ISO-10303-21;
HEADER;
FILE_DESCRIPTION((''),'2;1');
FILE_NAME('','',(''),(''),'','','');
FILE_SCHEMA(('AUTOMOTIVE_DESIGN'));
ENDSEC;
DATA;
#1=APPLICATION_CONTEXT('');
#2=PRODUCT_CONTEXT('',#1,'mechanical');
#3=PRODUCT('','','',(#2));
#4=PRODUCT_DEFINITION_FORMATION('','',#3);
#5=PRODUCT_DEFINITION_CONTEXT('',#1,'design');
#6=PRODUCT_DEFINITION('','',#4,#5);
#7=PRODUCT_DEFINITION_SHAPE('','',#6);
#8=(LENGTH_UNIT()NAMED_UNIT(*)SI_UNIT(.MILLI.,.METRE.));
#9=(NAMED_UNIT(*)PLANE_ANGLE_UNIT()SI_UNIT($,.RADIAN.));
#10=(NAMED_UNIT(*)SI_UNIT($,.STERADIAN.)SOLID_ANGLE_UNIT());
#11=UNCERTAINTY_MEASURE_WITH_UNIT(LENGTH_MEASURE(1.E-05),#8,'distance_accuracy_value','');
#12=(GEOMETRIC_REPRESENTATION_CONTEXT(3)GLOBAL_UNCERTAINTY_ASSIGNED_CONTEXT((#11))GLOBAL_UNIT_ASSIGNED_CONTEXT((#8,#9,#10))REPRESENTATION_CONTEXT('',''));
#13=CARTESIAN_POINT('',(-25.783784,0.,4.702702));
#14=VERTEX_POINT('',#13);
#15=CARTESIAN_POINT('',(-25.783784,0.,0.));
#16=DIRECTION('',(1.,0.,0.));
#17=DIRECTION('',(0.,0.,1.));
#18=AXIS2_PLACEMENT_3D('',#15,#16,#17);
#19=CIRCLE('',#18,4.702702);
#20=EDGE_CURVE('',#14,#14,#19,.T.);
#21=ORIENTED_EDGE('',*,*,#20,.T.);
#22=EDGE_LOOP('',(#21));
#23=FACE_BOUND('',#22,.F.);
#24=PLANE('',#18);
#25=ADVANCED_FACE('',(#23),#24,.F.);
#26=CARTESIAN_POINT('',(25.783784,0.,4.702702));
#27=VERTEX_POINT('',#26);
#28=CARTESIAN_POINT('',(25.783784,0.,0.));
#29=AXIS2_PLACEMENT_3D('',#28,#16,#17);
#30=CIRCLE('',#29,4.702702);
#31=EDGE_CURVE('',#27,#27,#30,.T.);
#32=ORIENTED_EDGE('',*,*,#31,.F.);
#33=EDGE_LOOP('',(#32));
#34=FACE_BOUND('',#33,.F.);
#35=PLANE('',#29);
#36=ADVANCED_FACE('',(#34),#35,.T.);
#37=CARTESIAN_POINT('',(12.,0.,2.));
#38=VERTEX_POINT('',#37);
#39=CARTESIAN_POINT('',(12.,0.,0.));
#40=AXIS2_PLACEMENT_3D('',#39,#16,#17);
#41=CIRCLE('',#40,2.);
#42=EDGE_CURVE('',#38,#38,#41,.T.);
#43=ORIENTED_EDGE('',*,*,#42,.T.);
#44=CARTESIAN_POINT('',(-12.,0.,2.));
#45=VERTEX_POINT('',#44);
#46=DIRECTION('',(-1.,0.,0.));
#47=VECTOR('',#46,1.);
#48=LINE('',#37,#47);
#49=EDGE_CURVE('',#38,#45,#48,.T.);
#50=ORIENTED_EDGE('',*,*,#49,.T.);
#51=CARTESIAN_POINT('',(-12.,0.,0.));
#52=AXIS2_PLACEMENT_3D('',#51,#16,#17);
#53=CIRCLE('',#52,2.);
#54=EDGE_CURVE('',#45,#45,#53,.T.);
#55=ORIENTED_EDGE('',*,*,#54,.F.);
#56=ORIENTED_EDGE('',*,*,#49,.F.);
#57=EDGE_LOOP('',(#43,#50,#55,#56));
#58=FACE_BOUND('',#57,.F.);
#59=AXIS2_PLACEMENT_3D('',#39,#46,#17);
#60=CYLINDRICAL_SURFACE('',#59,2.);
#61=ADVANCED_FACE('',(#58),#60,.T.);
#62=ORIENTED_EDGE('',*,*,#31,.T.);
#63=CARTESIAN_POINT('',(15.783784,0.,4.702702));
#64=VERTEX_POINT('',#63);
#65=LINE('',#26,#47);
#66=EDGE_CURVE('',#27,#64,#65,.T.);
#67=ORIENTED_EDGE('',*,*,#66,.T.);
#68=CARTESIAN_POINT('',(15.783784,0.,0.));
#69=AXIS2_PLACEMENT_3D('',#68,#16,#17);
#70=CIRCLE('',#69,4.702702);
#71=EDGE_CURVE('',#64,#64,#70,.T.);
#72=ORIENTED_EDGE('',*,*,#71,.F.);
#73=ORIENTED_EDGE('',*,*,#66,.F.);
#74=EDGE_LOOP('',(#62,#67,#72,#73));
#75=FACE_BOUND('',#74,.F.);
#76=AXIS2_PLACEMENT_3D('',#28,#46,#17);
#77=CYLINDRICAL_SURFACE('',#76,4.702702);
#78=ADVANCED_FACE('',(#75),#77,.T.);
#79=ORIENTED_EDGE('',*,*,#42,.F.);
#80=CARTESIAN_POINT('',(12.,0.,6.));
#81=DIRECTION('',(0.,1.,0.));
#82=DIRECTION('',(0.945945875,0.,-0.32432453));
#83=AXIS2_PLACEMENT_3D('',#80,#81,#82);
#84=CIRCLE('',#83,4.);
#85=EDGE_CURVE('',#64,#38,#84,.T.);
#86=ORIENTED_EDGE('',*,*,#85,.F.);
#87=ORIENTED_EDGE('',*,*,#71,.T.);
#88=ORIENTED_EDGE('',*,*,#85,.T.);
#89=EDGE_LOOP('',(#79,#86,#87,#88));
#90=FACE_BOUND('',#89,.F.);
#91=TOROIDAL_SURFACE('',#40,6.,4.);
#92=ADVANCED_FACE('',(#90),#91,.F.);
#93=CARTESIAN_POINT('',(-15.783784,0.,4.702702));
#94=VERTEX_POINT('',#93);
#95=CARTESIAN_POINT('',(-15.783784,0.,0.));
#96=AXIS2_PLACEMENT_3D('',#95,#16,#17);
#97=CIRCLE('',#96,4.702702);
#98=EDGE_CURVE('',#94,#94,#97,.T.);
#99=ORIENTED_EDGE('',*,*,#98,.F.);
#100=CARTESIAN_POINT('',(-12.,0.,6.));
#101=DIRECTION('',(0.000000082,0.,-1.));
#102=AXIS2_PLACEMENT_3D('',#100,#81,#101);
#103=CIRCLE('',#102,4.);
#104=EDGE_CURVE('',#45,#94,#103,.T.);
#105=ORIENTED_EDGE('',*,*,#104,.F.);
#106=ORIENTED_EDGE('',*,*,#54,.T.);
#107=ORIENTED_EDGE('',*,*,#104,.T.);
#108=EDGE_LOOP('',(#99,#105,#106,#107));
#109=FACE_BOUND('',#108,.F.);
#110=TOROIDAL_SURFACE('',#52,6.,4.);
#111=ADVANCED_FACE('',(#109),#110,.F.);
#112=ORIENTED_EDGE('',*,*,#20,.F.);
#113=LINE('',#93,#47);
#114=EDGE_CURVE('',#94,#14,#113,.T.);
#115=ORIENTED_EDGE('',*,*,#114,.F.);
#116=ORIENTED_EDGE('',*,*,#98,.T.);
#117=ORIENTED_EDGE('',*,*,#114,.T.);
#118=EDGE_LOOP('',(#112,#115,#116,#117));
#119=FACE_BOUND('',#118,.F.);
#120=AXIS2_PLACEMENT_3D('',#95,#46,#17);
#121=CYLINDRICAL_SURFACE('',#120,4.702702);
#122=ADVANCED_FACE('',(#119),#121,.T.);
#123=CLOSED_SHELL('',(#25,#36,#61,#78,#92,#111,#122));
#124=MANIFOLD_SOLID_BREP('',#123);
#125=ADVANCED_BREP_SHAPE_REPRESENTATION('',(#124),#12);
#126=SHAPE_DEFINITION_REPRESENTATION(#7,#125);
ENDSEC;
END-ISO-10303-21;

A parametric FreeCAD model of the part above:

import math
import FreeCAD as App
import Part
import Sketcher

doc = App.newDocument("Part")
body = doc.addObject("PartDesign::Body", "Body")

sketch1 = body.newObject("Sketcher::SketchObject", "Sketch")
sketch1.AttachmentSupport = (doc.getObject("XZ_Plane"), [""])
sketch1.MapMode = "FlatFace"
sketch1.addGeometry(Part.LineSegment(App.Vector(-25.8, 0, 0), App.Vector(25.8, 0, 0)), False)
sketch1.addGeometry(Part.LineSegment(App.Vector(25.8, 0, 0), App.Vector(25.8, 4.7, 0)), False)
sketch1.addGeometry(Part.LineSegment(App.Vector(25.8, 4.7, 0), App.Vector(15.8, 4.7, 0)), False)
sketch1.addGeometry(Part.ArcOfCircle(Part.Circle(App.Vector(12, 6, 0), App.Vector(0, 0, 1), 4), math.radians(-90), math.radians(-19)), False)
sketch1.addGeometry(Part.LineSegment(App.Vector(12, 2, 0), App.Vector(-12, 2, 0)), False)
sketch1.addGeometry(Part.ArcOfCircle(Part.Circle(App.Vector(-12, 6, 0), App.Vector(0, 0, 1), 4), math.radians(-161), math.radians(-90)), False)
sketch1.addGeometry(Part.LineSegment(App.Vector(-15.8, 4.7, 0), App.Vector(-25.8, 4.7, 0)), False)
sketch1.addGeometry(Part.LineSegment(App.Vector(-25.8, 4.7, 0), App.Vector(-25.8, 0, 0)), False)
sketch1.addConstraint(Sketcher.Constraint("Coincident", 0, 2, 1, 1))
sketch1.addConstraint(Sketcher.Constraint("Coincident", 1, 2, 2, 1))
sketch1.addConstraint(Sketcher.Constraint("Coincident", 2, 2, 3, 2))
sketch1.addConstraint(Sketcher.Constraint("Tangent", 3, 1, 4, 1))
sketch1.addConstraint(Sketcher.Constraint("Tangent", 4, 2, 5, 2))
sketch1.addConstraint(Sketcher.Constraint("Coincident", 5, 1, 6, 1))
sketch1.addConstraint(Sketcher.Constraint("Coincident", 6, 2, 7, 1))
sketch1.addConstraint(Sketcher.Constraint("Coincident", 7, 2, 0, 1))
sketch1.addConstraint(Sketcher.Constraint("Horizontal", 0))
sketch1.addConstraint(Sketcher.Constraint("Vertical", 1))
sketch1.addConstraint(Sketcher.Constraint("Horizontal", 2))
sketch1.addConstraint(Sketcher.Constraint("Horizontal", 4))
sketch1.addConstraint(Sketcher.Constraint("Horizontal", 6))
sketch1.addConstraint(Sketcher.Constraint("Vertical", 7))
sketch1.addConstraint(Sketcher.Constraint("Equal", 3, 5))
sketch1.addConstraint(Sketcher.Constraint("Symmetric", 0, 2, 7, 2, -1, 1))
sketch1.addConstraint(Sketcher.Constraint("Symmetric", 2, 2, 5, 1, -2))
sketch1.addConstraint(Sketcher.Constraint("Radius", 3, 4.0))
sketch1.addConstraint(Sketcher.Constraint("DistanceX", 2, 2, 2, 1, 10.0))
sketch1.addConstraint(Sketcher.Constraint("DistanceX", 4, 2, 4, 1, 24.0))
sketch1.addConstraint(Sketcher.Constraint("DistanceY", -1, 1, 3, 3, 6.0))
sketch1.addConstraint(Sketcher.Constraint("DistanceY", -1, 1, 5, 1, 4.702702))
revolution = body.newObject("PartDesign::Revolution", "Revolution")
revolution.Profile = sketch1
revolution.ReferenceAxis = (sketch1, ["H_Axis"])
revolution.Angle = 360

doc.recompute()
